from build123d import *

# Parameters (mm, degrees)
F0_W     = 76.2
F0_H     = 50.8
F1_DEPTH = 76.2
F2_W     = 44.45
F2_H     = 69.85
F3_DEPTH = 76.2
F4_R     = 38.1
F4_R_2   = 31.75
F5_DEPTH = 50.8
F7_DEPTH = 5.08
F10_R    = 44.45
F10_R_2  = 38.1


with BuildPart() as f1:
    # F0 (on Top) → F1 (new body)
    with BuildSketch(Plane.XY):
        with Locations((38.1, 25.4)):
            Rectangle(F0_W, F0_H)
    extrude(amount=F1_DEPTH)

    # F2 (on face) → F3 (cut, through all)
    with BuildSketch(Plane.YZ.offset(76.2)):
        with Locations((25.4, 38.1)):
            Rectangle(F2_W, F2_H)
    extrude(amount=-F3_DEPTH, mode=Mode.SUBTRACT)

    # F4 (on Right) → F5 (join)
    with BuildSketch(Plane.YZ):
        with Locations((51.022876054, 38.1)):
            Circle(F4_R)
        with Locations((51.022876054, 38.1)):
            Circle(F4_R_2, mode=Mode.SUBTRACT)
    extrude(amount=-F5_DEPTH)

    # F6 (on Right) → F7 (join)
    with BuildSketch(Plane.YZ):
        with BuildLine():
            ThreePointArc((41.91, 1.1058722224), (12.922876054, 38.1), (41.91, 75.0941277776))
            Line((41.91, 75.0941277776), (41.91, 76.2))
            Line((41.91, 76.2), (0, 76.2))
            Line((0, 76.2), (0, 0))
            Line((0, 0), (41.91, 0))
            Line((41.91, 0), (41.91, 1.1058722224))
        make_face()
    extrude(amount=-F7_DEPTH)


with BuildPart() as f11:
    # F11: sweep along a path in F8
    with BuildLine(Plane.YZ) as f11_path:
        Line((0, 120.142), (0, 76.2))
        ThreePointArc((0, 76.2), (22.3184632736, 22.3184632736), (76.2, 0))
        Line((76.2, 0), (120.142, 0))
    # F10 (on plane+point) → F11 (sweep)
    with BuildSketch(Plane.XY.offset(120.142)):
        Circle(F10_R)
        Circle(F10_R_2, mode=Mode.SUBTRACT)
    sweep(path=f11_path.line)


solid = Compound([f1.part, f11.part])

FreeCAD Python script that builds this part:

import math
import FreeCAD as App
import Part
import Sketcher
from FreeCAD import Vector
Q = App.Units.Quantity

doc = App.newDocument("Part")
body = doc.addObject("PartDesign::Body", "Body")

# Sketch on XY plane
sketch1 = body.newObject("Sketcher::SketchObject", "Sketch")
sketch1.AttachmentSupport = (doc.getObject("XY_Plane"), [""])
sketch1.MapMode = "FlatFace"
sketch1.addGeometry([
    Part.LineSegment(Vector(0, 51, 0), Vector(0, 0, 0)),
    Part.LineSegment(Vector(0, 0, 0), Vector(76, 0, 0)),
    Part.LineSegment(Vector(76, 0, 0), Vector(76, 51, 0)),
    Part.LineSegment(Vector(76, 51, 0), Vector(0, 51, 0)),
], False)
sketch1.addConstraint([
    Sketcher.Constraint("Coincident", 0, 2, 1, 1),
    Sketcher.Constraint("Coincident", 1, 2, 2, 1),
    Sketcher.Constraint("Coincident", 2, 2, 3, 1),
    Sketcher.Constraint("Coincident", 3, 2, 0, 1),
    Sketcher.Constraint("Vertical", 0),
    Sketcher.Constraint("Horizontal", 1),
    Sketcher.Constraint("Vertical", 2),
    Sketcher.Constraint("Horizontal", 3),
    Sketcher.Constraint("Coincident", 0, 2, -1, 1),
    Sketcher.Constraint("DistanceX", 1, 1, 1, 2, Q("3 in")),
    Sketcher.Constraint("DistanceY", 0, 2, 0, 1, Q("2 in")),
])
pad1 = body.newObject("PartDesign::Pad", "Pad")
pad1.Profile = sketch1
pad1.Length = Q("3 in")

# Sketch on YZ plane
sketch2 = body.newObject("Sketcher::SketchObject", "Sketch001")
sketch2.AttachmentSupport = (doc.getObject("YZ_Plane"), [""])
sketch2.MapMode = "FlatFace"
sketch2.AttachmentOffset = App.Placement(Vector(0, 0, 3 * 25.4), App.Rotation())
sketch2.addGeometry([
    Part.LineSegment(Vector(3, 73, 0), Vector(3, 3, 0)),
    Part.LineSegment(Vector(3, 3, 0), Vector(48, 3, 0)),
    Part.LineSegment(Vector(48, 3, 0), Vector(48, 73, 0)),
    Part.LineSegment(Vector(48, 73, 0), Vector(3, 73, 0)),
], False)
sketch2.addConstraint([
    Sketcher.Constraint("Coincident", 0, 2, 1, 1),
    Sketcher.Constraint("Coincident", 1, 2, 2, 1),
    Sketcher.Constraint("Coincident", 2, 2, 3, 1),
    Sketcher.Constraint("Coincident", 3, 2, 0, 1),
    Sketcher.Constraint("Vertical", 0),
    Sketcher.Constraint("Horizontal", 1),
    Sketcher.Constraint("Vertical", 2),
    Sketcher.Constraint("Horizontal", 3),
    Sketcher.Constraint("DistanceX", 1, 1, 1, 2, Q("1.75 in")),
    Sketcher.Constraint("DistanceY", 0, 2, 0, 1, Q("2.75 in")),
    Sketcher.Constraint("DistanceX", -1, 1, 0, 2, Q("0.125 in")),
    Sketcher.Constraint("DistanceY", -1, 1, 0, 2, Q("0.125 in")),
])
pocket1 = body.newObject("PartDesign::Pocket", "Pocket")
pocket1.Profile = sketch2
pocket1.Type = "ThroughAll"

# Sketch on YZ plane
sketch3 = body.newObject("Sketcher::SketchObject", "Sketch002")
sketch3.AttachmentSupport = (doc.getObject("YZ_Plane"), [""])
sketch3.MapMode = "FlatFace"
sketch3.addGeometry([
    Part.Circle(Vector(51, 38, 0), Vector(0, 0, 1), 38),
    Part.Circle(Vector(51, 38, 0), Vector(0, 0, 1), 32),
], False)
sketch3.addConstraint([
    Sketcher.Constraint("Coincident", 1, 3, 0, 3),
    Sketcher.Constraint("Diameter", 0, Q("3 in")),
    Sketcher.Constraint("Diameter", 1, Q("2.5 in")),
    Sketcher.Constraint("DistanceY", -1, 1, 0, 3, Q("1.5 in")),
    Sketcher.Constraint("DistanceX", -1, 1, 0, 3, 51.022876),
])
pad2 = body.newObject("PartDesign::Pad", "Pad001")
pad2.Profile = sketch3
pad2.Length = Q("2 in")
pad2.Reversed = True

# Sketch on YZ plane
sketch4 = body.newObject("Sketcher::SketchObject", "Sketch003")
sketch4.AttachmentSupport = (doc.getObject("YZ_Plane"), [""])
sketch4.MapMode = "FlatFace"
sketch4.addGeometry([
    Part.ArcOfCircle(Part.Circle(Vector(51, 38.1, 0), Vector(0, 0, 1), 38.1), math.radians(104), math.radians(256)),  # 0
    Part.LineSegment(Vector(41.9, 75.1, 0), Vector(41.9, 76.2, 0)),  # 1
    Part.LineSegment(Vector(41.9, 76.2, 0), Vector(0, 76.2, 0)),  # 2
    Part.LineSegment(Vector(0, 76.2, 0), Vector(0, 0, 0)),  # 3
    Part.LineSegment(Vector(0, 0, 0), Vector(41.9, 0, 0)),  # 4
    Part.LineSegment(Vector(41.9, 0, 0), Vector(41.9, 1.1, 0)),  # 5
], False)
sketch4.addConstraint([
    Sketcher.Constraint("Coincident", 0, 1, 1, 1),
    Sketcher.Constraint("Coincident", 1, 2, 2, 1),
    Sketcher.Constraint("Coincident", 2, 2, 3, 1),
    Sketcher.Constraint("Coincident", 3, 2, 4, 1),
    Sketcher.Constraint("Coincident", 4, 2, 5, 1),
    Sketcher.Constraint("Coincident", 5, 2, 0, 2),
    Sketcher.Constraint("Vertical", 1),
    Sketcher.Constraint("Horizontal", 2),
    Sketcher.Constraint("Vertical", 3),
    Sketcher.Constraint("Horizontal", 4),
    Sketcher.Constraint("Vertical", 5),
    Sketcher.Constraint("Coincident", 3, 2, -1, 1),
    Sketcher.Constraint("Vertical", 1, 2, 4, 2),
    Sketcher.Constraint("Equal", 1, 5),
    Sketcher.Constraint("Radius", 0, Q("1.5 in")),
    Sketcher.Constraint("DistanceY", 3, 2, 3, 1, Q("3 in")),
    Sketcher.Constraint("DistanceX", 2, 2, 2, 1, Q("1.65 in")),
    Sketcher.Constraint("DistanceY", 1, 1, 1, 2, 1.105872),
])
pad3 = body.newObject("PartDesign::Pad", "Pad002")
pad3.Profile = sketch4
pad3.Length = Q("0.2 in")
pad3.Reversed = True
body2 = doc.addObject("PartDesign::Body", "Body001")

# Sketch on XY plane
sketch5 = body2.newObject("Sketcher::SketchObject", "Sketch004")
sketch5.AttachmentSupport = (doc.getObject("XY_Plane001"), [""])
sketch5.MapMode = "FlatFace"
sketch5.AttachmentOffset = App.Placement(Vector(0, 0, 4.73 * 25.4), App.Rotation())
sketch5.addGeometry([
    Part.Circle(Vector(0, 0, 0), Vector(0, 0, 1), 44),
    Part.Circle(Vector(0, 0, 0), Vector(0, 0, 1), 38),
], False)
sketch5.addConstraint([
    Sketcher.Constraint("Coincident", 0, 3, -1, 1),
    Sketcher.Constraint("Coincident", 1, 3, -1, 1),
    Sketcher.Constraint("Diameter", 1, Q("3 in")),
    Sketcher.Constraint("Diameter", 0, Q("3.5 in")),
])

# Sketch on YZ plane
sketch6 = body2.newObject("Sketcher::SketchObject", "Sketch005")
sketch6.AttachmentSupport = (doc.getObject("YZ_Plane001"), [""])
sketch6.MapMode = "FlatFace"
sketch6.addGeometry([
    Part.LineSegment(Vector(0, 120, 0), Vector(0, 76, 0)),
    Part.ArcOfCircle(Part.Circle(Vector(76, 76, 0), Vector(0, 0, 1), 76), math.radians(180), math.radians(270)),
    Part.LineSegment(Vector(76, 0, 0), Vector(120, 0, 0)),
], False)
sketch6.addConstraint([
    Sketcher.Constraint("Tangent", 0, 2, 1, 1),
    Sketcher.Constraint("Tangent", 1, 2, 2, 1),
    Sketcher.Constraint("Vertical", 0),
    Sketcher.Constraint("Horizontal", 2),
    Sketcher.Constraint("PointOnObject", 0, 1, -2),
    Sketcher.Constraint("PointOnObject", 1, 2, -1),
    Sketcher.Constraint("Equal", 2, 0),
    Sketcher.Constraint("Radius", 1, Q("3 in")),
    Sketcher.Constraint("DistanceX", 2, 1, 2, 2, Q("1.73 in")),
])
doc.recompute()

additivepipe = body2.newObject("PartDesign::AdditivePipe", "AdditivePipe")
additivepipe.Profile = sketch5
additivepipe.Spine = (sketch6, ["Edge1", "Edge2", "Edge3"])

doc.recompute()
